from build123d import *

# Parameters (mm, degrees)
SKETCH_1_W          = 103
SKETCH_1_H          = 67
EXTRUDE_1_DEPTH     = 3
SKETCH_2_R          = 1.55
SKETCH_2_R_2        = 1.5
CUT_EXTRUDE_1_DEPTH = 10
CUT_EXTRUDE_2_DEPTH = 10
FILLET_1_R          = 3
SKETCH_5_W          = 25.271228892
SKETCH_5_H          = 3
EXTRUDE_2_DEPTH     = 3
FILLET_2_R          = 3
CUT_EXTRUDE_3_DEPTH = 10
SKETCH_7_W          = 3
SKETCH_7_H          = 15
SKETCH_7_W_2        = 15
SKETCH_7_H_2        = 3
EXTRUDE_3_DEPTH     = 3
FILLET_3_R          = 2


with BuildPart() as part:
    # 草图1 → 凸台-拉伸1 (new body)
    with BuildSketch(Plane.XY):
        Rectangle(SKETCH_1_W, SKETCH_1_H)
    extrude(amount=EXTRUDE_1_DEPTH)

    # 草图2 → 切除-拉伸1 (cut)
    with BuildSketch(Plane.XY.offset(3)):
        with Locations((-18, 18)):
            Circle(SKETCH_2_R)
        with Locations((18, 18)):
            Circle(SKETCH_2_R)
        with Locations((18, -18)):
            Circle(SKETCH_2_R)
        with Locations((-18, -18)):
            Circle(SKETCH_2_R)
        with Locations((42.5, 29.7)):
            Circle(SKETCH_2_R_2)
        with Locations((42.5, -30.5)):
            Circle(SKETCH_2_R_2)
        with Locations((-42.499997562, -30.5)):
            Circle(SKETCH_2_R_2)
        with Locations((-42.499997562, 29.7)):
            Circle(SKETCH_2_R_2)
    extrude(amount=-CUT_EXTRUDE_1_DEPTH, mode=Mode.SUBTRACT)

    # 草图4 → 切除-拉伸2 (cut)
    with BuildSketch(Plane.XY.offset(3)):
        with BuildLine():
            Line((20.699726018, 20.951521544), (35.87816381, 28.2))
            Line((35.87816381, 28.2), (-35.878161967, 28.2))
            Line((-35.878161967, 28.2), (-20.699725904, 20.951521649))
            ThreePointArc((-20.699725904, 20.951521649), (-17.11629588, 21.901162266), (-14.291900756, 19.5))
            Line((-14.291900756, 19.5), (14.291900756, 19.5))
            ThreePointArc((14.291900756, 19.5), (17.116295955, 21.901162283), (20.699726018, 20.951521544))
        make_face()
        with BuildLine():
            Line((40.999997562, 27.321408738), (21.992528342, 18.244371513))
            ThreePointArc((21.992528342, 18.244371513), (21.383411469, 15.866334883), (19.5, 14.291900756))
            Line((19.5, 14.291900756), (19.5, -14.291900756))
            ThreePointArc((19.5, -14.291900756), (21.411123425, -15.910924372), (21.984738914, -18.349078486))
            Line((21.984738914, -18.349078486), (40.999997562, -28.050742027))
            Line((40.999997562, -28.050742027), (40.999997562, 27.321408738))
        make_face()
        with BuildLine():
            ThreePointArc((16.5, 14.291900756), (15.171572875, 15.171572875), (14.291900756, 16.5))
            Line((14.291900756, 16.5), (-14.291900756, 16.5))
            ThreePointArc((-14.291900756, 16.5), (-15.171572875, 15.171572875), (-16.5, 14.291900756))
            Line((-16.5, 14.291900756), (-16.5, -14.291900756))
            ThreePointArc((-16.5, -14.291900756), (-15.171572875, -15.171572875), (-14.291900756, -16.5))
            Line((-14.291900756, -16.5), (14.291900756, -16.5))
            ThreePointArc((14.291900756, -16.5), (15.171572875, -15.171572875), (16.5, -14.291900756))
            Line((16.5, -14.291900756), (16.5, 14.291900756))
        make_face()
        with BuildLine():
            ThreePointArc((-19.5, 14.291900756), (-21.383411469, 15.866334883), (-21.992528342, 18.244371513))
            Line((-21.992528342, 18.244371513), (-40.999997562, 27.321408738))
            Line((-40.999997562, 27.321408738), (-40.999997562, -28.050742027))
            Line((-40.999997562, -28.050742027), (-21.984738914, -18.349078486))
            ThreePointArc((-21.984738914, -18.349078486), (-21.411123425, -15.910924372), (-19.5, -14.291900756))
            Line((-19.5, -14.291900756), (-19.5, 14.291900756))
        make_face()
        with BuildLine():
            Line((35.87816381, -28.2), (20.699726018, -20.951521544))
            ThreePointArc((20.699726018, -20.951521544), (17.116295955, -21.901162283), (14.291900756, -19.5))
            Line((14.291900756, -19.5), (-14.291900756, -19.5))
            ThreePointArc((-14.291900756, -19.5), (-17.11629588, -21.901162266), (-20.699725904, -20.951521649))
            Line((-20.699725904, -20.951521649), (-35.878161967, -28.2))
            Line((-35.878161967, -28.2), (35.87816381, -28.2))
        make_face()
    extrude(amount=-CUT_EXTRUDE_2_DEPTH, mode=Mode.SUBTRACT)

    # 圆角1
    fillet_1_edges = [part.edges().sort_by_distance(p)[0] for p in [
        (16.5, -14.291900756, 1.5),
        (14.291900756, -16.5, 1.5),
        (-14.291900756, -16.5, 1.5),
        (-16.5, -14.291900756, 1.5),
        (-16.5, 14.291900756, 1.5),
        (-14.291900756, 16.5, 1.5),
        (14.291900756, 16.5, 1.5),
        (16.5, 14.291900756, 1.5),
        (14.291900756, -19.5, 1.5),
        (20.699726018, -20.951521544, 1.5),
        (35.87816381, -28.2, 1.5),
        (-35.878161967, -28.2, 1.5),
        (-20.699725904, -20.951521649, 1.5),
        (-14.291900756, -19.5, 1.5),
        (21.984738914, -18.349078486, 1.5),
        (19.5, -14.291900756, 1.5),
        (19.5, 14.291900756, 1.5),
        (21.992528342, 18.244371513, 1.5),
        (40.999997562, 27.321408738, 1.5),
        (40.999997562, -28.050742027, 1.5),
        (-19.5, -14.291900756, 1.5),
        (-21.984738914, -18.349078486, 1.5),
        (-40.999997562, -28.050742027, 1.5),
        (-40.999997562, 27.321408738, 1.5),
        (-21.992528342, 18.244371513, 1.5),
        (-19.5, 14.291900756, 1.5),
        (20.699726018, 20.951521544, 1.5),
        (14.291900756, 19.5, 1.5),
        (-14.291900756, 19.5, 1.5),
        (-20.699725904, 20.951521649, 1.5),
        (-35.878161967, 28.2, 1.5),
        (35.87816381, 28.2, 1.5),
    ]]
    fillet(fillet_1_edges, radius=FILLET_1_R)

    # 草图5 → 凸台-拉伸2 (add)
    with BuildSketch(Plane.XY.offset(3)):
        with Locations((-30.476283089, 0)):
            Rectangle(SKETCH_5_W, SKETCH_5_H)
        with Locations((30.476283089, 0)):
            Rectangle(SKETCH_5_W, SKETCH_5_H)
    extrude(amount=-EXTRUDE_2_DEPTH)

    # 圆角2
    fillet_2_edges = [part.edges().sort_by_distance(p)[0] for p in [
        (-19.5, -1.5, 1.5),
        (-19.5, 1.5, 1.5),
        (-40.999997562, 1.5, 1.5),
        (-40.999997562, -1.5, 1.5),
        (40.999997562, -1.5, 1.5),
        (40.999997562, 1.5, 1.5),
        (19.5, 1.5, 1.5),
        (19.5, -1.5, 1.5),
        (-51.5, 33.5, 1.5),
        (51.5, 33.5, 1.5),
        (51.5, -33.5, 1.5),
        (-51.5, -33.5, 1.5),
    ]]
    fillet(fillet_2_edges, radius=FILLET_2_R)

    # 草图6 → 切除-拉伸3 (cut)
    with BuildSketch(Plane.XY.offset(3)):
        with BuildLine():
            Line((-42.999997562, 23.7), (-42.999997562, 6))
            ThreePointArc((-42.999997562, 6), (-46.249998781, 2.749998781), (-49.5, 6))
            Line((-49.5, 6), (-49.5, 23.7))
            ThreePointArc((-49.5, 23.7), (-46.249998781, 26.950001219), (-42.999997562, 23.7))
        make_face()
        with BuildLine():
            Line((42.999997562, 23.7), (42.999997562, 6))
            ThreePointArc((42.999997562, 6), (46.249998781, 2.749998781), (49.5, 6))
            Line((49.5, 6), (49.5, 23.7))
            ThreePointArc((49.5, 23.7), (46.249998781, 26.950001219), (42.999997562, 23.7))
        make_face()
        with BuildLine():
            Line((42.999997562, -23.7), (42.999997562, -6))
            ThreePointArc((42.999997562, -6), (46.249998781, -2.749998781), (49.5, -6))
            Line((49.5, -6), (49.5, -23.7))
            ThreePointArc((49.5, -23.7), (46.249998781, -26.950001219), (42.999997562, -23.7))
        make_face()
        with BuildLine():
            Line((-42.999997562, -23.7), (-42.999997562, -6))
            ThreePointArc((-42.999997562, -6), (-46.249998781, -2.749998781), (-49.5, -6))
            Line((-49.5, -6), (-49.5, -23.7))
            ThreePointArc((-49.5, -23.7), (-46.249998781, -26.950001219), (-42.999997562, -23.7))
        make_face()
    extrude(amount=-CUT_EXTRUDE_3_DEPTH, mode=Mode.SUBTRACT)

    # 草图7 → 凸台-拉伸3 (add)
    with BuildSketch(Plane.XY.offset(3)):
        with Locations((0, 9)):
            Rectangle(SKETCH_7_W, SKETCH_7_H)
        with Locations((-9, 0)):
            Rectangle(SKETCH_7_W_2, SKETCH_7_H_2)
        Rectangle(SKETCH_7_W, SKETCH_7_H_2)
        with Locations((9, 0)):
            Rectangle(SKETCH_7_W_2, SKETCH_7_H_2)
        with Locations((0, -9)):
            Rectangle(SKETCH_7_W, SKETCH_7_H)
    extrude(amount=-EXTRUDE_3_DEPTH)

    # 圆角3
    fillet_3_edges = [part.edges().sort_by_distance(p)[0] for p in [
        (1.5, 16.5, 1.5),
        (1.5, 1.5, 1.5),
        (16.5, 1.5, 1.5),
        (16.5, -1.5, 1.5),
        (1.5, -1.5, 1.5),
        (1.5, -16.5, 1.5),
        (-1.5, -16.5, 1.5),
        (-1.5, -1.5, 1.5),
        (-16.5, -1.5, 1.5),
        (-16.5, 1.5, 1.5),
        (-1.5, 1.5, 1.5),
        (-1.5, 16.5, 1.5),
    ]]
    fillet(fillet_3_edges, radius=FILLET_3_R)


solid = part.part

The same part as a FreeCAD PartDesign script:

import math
import FreeCAD as App
import Part
import Sketcher
from FreeCAD import Vector
Q = App.Units.Quantity


def edges_at(feature, points):
    """Names of the edges that pass closest to the given points."""
    edges = feature.Shape.Edges
    near = lambda p: min(range(len(edges)), key=lambda i: edges[i].distToShape(Part.Vertex(*p))[0])
    return sorted({f"Edge{near(p) + 1}" for p in points})


def add_polygon(sketch, points):
    """Adds a closed chain of lines whose ends are joined by coincident constraints."""
    first, n = sketch.GeometryCount, len(points)
    for a, b in zip(points, points[1:] + points[:1]):
        sketch.addGeometry(Part.LineSegment(App.Vector(*a, 0), App.Vector(*b, 0)), False)
    for i in range(n):
        sketch.addConstraint(Sketcher.Constraint("Coincident", first + i, 2, first + (i + 1) % n, 1))

doc = App.newDocument("Part")
body = doc.addObject("PartDesign::Body", "Body")

sketch1 = body.newObject("Sketcher::SketchObject", "Sketch")
sketch1.AttachmentSupport = (doc.getObject("XY_Plane"), [""])
sketch1.MapMode = "FlatFace"
add_polygon(sketch1, [(-52, 34), (-52, -34), (52, -34), (52, 34)])
sketch1.addConstraint([
    Sketcher.Constraint("Vertical", 0),
    Sketcher.Constraint("Horizontal", 1),
    Sketcher.Constraint("Vertical", 2),
    Sketcher.Constraint("Horizontal", 3),
    Sketcher.Constraint("Symmetric", 0, 2, 2, 2, -1, 1),
    Sketcher.Constraint("DistanceX", 1, 1, 1, 2, Q("103 mm")),
    Sketcher.Constraint("DistanceY", 0, 2, 0, 1, Q("67 mm")),
])
pad1 = body.newObject("PartDesign::Pad", "Pad")
pad1.Profile = sketch1
pad1.Length = 3

sketch2 = body.newObject("Sketcher::SketchObject", "Sketch001")
sketch2.AttachmentSupport = (doc.getObject("XY_Plane"), [""])
sketch2.MapMode = "FlatFace"
sketch2.AttachmentOffset = App.Placement(Vector(0, 0, 3), App.Rotation())
sketch2.addGeometry([
    Part.Circle(Vector(-18, 18, 0), Vector(0, 0, 1), 1.6),
    Part.Circle(Vector(18, 18, 0), Vector(0, 0, 1), 1.6),
    Part.Circle(Vector(18, -18, 0), Vector(0, 0, 1), 1.6),
    Part.Circle(Vector(-18, -18, 0), Vector(0, 0, 1), 1.6),
    Part.Circle(Vector(42.5, 29.7, 0), Vector(0, 0, 1), 1.5),
    Part.Circle(Vector(42.5, -30.5, 0), Vector(0, 0, 1), 1.5),
    Part.Circle(Vector(-42.5, -30.5, 0), Vector(0, 0, 1), 1.5),
    Part.Circle(Vector(-42.5, 29.7, 0), Vector(0, 0, 1), 1.5),
], False)
sketch2.addConstraint([
    Sketcher.Constraint("Equal", 0, 1),
    Sketcher.Constraint("Equal", 1, 2),
    Sketcher.Constraint("Equal", 2, 3),
    Sketcher.Constraint("Equal", 4, 5),
    Sketcher.Constraint("Equal", 5, 6),
    Sketcher.Constraint("Equal", 6, 7),
    Sketcher.Constraint("Symmetric", 0, 3, 2, 3, -1, 1),
    Sketcher.Constraint("Symmetric", 1, 3, 3, 3, -1, 1),
    Sketcher.Constraint("Symmetric", 0, 3, 1, 3, -2),
    Sketcher.Constraint("Symmetric", 5, 3, 6, 3, -2),
    Sketcher.Constraint("Symmetric", 4, 3, 7, 3, -2),
    Sketcher.Constraint("Vertical", 4, 3, 5, 3),
    Sketcher.Constraint("Diameter", 4, Q("3 mm")),
    Sketcher.Constraint("Diameter", 0, Q("3.1 mm")),
    Sketcher.Constraint("DistanceX", 0, 3, -1, 1, Q("18 mm")),
    Sketcher.Constraint("DistanceY", -1, 1, 0, 3, Q("18 mm")),
    Sketcher.Constraint("DistanceX", -1, 1, 4, 3, Q("42.5 mm")),
    Sketcher.Constraint("DistanceY", -1, 1, 4, 3, Q("29.7 mm")),
    Sketcher.Constraint("DistanceY", 5, 3, -1, 1, Q("30.5 mm")),
])
pocket1 = body.newObject("PartDesign::Pocket", "Pocket")
pocket1.Profile = sketch2
pocket1.Length = 10

sketch3 = body.newObject("Sketcher::SketchObject", "Sketch002")
sketch3.AttachmentSupport = (doc.getObject("XY_Plane"), [""])
sketch3.MapMode = "FlatFace"
sketch3.AttachmentOffset = App.Placement(Vector(0, 0, 3), App.Rotation())
sketch3.addGeometry([
    Part.LineSegment(Vector(20.7, 21, 0), Vector(35.9, 28.2, 0)),
    Part.LineSegment(Vector(35.9, 28.2, 0), Vector(-35.9, 28.2, 0)),
    Part.LineSegment(Vector(-35.9, 28.2, 0), Vector(-20.7, 21, 0)),
    Part.ArcOfCircle(Part.Circle(Vector(-18, 18, 0), Vector(0, 0, 1), 4), math.radians(22), math.radians(132)),
    Part.LineSegment(Vector(-14.3, 19.5, 0), Vector(14.3, 19.5, 0)),
    Part.ArcOfCircle(Part.Circle(Vector(18, 18, 0), Vector(0, 0, 1), 4), math.radians(48), math.radians(158)),
    Part.LineSegment(Vector(41, 27.3, 0), Vector(22, 18.2, 0)),
    Part.ArcOfCircle(Part.Circle(Vector(18, 18, 0), Vector(0, 0, 1), 4), math.radians(-68), math.radians(4)),
    Part.LineSegment(Vector(19.5, 14.3, 0), Vector(19.5, -14.3, 0)),
    Part.ArcOfCircle(Part.Circle(Vector(18, -18, 0), Vector(0, 0, 1), 4), math.radians(-5), math.radians(68)),
    Part.LineSegment(Vector(22, -18.3, 0), Vector(41, -28.1, 0)),
    Part.LineSegment(Vector(41, -28.1, 0), Vector(41, 27.3, 0)),
    Part.ArcOfCircle(Part.Circle(Vector(18, 18, 0), Vector(0, 0, 1), 4), math.radians(-158), math.radians(-112)),
    Part.LineSegment(Vector(14.3, 16.5, 0), Vector(-14.3, 16.5, 0)),
    Part.ArcOfCircle(Part.Circle(Vector(-18, 18, 0), Vector(0, 0, 1), 4), math.radians(-68), math.radians(-22)),
    Part.LineSegment(Vector(-16.5, 14.3, 0), Vector(-16.5, -14.3, 0)),
    Part.ArcOfCircle(Part.Circle(Vector(-18, -18, 0), Vector(0, 0, 1), 4), math.radians(22), math.radians(68)),
    Part.LineSegment(Vector(-14.3, -16.5, 0), Vector(14.3, -16.5, 0)),
    Part.ArcOfCircle(Part.Circle(Vector(18, -18, 0), Vector(0, 0, 1), 4), math.radians(112), math.radians(158)),
    Part.LineSegment(Vector(16.5, -14.3, 0), Vector(16.5, 14.3, 0)),
    Part.ArcOfCircle(Part.Circle(Vector(-18, 18, 0), Vector(0, 0, 1), 4), math.radians(176), math.radians(248)),
    Part.LineSegment(Vector(-22, 18.2, 0), Vector(-41, 27.3, 0)),
    Part.LineSegment(Vector(-41, 27.3, 0), Vector(-41, -28.1, 0)),
    Part.LineSegment(Vector(-41, -28.1, 0), Vector(-22, -18.3, 0)),
    Part.ArcOfCircle(Part.Circle(Vector(-18, -18, 0), Vector(0, 0, 1), 4), math.radians(112), math.radians(185)),
    Part.LineSegment(Vector(-19.5, -14.3, 0), Vector(-19.5, 14.3, 0)),
    Part.LineSegment(Vector(35.9, -28.2, 0), Vector(20.7, -21, 0)),
    Part.ArcOfCircle(Part.Circle(Vector(18, -18, 0), Vector(0, 0, 1), 4), math.radians(-158), math.radians(-48)),
    Part.LineSegment(Vector(14.3, -19.5, 0), Vector(-14.3, -19.5, 0)),
    Part.ArcOfCircle(Part.Circle(Vector(-18, -18, 0), Vector(0, 0, 1), 4), math.radians(-132), math.radians(-22)),
    Part.LineSegment(Vector(-20.7, -21, 0), Vector(-35.9, -28.2, 0)),
    Part.LineSegment(Vector(-35.9, -28.2, 0), Vector(35.9, -28.2, 0)),
], False)
sketch3.addConstraint([
    Sketcher.Constraint("Coincident", 0, 2, 1, 1),
    Sketcher.Constraint("Coincident", 1, 2, 2, 1),
    Sketcher.Constraint("Coincident", 2, 2, 3, 2),
    Sketcher.Constraint("Coincident", 3, 1, 4, 1),
    Sketcher.Constraint("Coincident", 4, 2, 5, 2),
    Sketcher.Constraint("Coincident", 5, 1, 0, 1),
    Sketcher.Constraint("Coincident", 6, 2, 7, 2),
    Sketcher.Constraint("Coincident", 7, 1, 8, 1),
    Sketcher.Constraint("Coincident", 8, 2, 9, 2),
    Sketcher.Constraint("Coincident", 9, 1, 10, 1),
    Sketcher.Constraint("Coincident", 10, 2, 11, 1),
    Sketcher.Constraint("Coincident", 11, 2, 6, 1),
    Sketcher.Constraint("Coincident", 12, 1, 13, 1),
    Sketcher.Constraint("Coincident", 13, 2, 14, 2),
    Sketcher.Constraint("Coincident", 14, 1, 15, 1),
    Sketcher.Constraint("Coincident", 15, 2, 16, 2),
    Sketcher.Constraint("Coincident", 16, 1, 17, 1),
    Sketcher.Constraint("Coincident", 17, 2, 18, 2),
    Sketcher.Constraint("Coincident", 18, 1, 19, 1),
    Sketcher.Constraint("Coincident", 19, 2, 12, 2),
    Sketcher.Constraint("Coincident", 20, 1, 21, 1),
    Sketcher.Constraint("Coincident", 21, 2, 22, 1),
    Sketcher.Constraint("Coincident", 22, 2, 23, 1),
    Sketcher.Constraint("Coincident", 23, 2, 24, 2),
    Sketcher.Constraint("Coincident", 24, 1, 25, 1),
    Sketcher.Constraint("Coincident", 25, 2, 20, 2),
    Sketcher.Constraint("Coincident", 26, 2, 27, 2),
    Sketcher.Constraint("Coincident", 27, 1, 28, 1),
    Sketcher.Constraint("Coincident", 28, 2, 29, 2),
    Sketcher.Constraint("Coincident", 29, 1, 30, 1),
    Sketcher.Constraint("Coincident", 30, 2, 31, 1),
    Sketcher.Constraint("Coincident", 31, 2, 26, 1),
    Sketcher.Constraint("Horizontal", 1),
    Sketcher.Constraint("Horizontal", 4),
    Sketcher.Constraint("Vertical", 8),
    Sketcher.Constraint("Vertical", 11),
    Sketcher.Constraint("Horizontal", 13),
    Sketcher.Constraint("Vertical", 15),
    Sketcher.Constraint("Horizontal", 17),
    Sketcher.Constraint("Vertical", 19),
    Sketcher.Constraint("Vertical", 22),
    Sketcher.Constraint("Vertical", 25),
    Sketcher.Constraint("Horizontal", 28),
    Sketcher.Constraint("Horizontal", 31),
    Sketcher.Constraint("Coincident", 7, 3, 5, 3),
    Sketcher.Constraint("Coincident", 12, 3, 5, 3),
    Sketcher.Constraint("Coincident", 14, 3, 3, 3),
    Sketcher.Constraint("Coincident", 18, 3, 9, 3),
    Sketcher.Constraint("Coincident", 20, 3, 3, 3),
    Sketcher.Constraint("Coincident", 24, 3, 16, 3),
    Sketcher.Constraint("Coincident", 27, 3, 9, 3),
    Sketcher.Constraint("Coincident", 29, 3, 16, 3),
    Sketcher.Constraint("Equal", 3, 5),
    Sketcher.Constraint("Equal", 5, 7),
    Sketcher.Constraint("Equal", 7, 9),
    Sketcher.Constraint("Equal", 9, 12),
    Sketcher.Constraint("Equal", 12, 14),
    Sketcher.Constraint("Equal", 14, 16),
    Sketcher.Constraint("Equal", 16, 18),
    Sketcher.Constraint("Equal", 18, 20),
    Sketcher.Constraint("Equal", 20, 24),
    Sketcher.Constraint("Equal", 24, 27),
    Sketcher.Constraint("Equal", 27, 29),
    Sketcher.Constraint("Symmetric", 3, 3, 9, 3, -1, 1),
    Sketcher.Constraint("Symmetric", 5, 3, 16, 3, -1, 1),
    Sketcher.Constraint("Symmetric", 0, 2, 30, 2, -1, 1),
    Sketcher.Constraint("Symmetric", 3, 3, 5, 3, -2),
    Sketcher.Constraint("Symmetric", 11, 2, 21, 2, -2),
    Sketcher.Constraint("Parallel", 0, 6),
    Sketcher.Constraint("Parallel", 2, 21),
    Sketcher.Constraint("Parallel", 21, 26),
    Sketcher.Constraint("Parallel", 6, 30),
    Sketcher.Constraint("Horizontal", 2, 2, 5, 1),
    Sketcher.Constraint("Horizontal", 7, 1, 14, 1),
    Sketcher.Constraint("Horizontal", 15, 2, 18, 1),
    Sketcher.Constraint("Horizontal", 6, 2, 20, 1),
    Sketcher.Constraint("Horizontal", 10, 2, 22, 2),
    Sketcher.Constraint("Horizontal", 9, 1, 23, 2),
    Sketcher.Constraint("Horizontal", 18, 1, 24, 1),
    Sketcher.Constraint("Horizontal", 26, 2, 29, 1),
    Sketcher.Constraint("Vertical", 4, 2, 12, 1),
    Sketcher.Constraint("Vertical", 13, 2, 16, 1),
    Sketcher.Constraint("Vertical", 17, 2, 27, 1),
    Sketcher.Constraint("Equal", 28, 8),
    Sketcher.Constraint("Radius", 3, Q("4 mm")),
    Sketcher.Constraint("DistanceX", 3, 3, -1, 1, Q("18 mm")),
    Sketcher.Constraint("DistanceY", -1, 1, 3, 3, Q("18 mm")),
    Sketcher.Constraint("DistanceY", 12, 1, 4, 2, Q("3 mm")),
    Sketcher.Constraint("DistanceY", -1, 1, 0, 2, Q("28.2 mm")),
    Sketcher.Constraint("DistanceY", 11, 1, 11, 2, Q("55.372151 mm")),
    Sketcher.Constraint("Distance", 6, Q("21.06363 mm")),
    Sketcher.Constraint("DistanceX", 1, 2, 1, 1, Q("71.756326 mm")),
    Sketcher.Constraint("DistanceY", -1, 1, 2, 2, Q("20.951522 mm")),
    Sketcher.Constraint("DistanceX", -1, 1, 6, 2, Q("21.992528 mm")),
    Sketcher.Constraint("DistanceX", -1, 1, 9, 1, Q("21.984739 mm")),
])
pocket2 = body.newObject("PartDesign::Pocket", "Pocket001")
pocket2.Profile = sketch3
pocket2.Length = 10
doc.recompute()

fillet = body.newObject("PartDesign::Fillet", "Fillet")
fillet.Base = (pocket2, edges_at(pocket2, [
    (16.5, -14.292, 1.5),
    (14.292, -16.5, 1.5),
    (-14.292, -16.5, 1.5),
    (-16.5, -14.292, 1.5),
    (-16.5, 14.292, 1.5),
    (-14.292, 16.5, 1.5),
    (14.292, 16.5, 1.5),
    (16.5, 14.292, 1.5),
    (14.292, -19.5, 1.5),
    (20.7, -20.952, 1.5),
    (35.878, -28.2, 1.5),
    (-35.878, -28.2, 1.5),
    (-20.7, -20.952, 1.5),
    (-14.292, -19.5, 1.5),
    (21.985, -18.349, 1.5),
    (19.5, -14.292, 1.5),
    (19.5, 14.292, 1.5),
    (21.993, 18.244, 1.5),
    (41, 27.321, 1.5),
    (41, -28.051, 1.5),
    (-19.5, -14.292, 1.5),
    (-21.985, -18.349, 1.5),
    (-41, -28.051, 1.5),
    (-41, 27.321, 1.5),
    (-21.993, 18.244, 1.5),
    (-19.5, 14.292, 1.5),
    (20.7, 20.952, 1.5),
    (14.292, 19.5, 1.5),
    (-14.292, 19.5, 1.5),
    (-20.7, 20.952, 1.5),
    (-35.878, 28.2, 1.5),
    (35.878, 28.2, 1.5),
]))
fillet.Radius = 3

sketch4 = body.newObject("Sketcher::SketchObject", "Sketch003")
sketch4.AttachmentSupport = (doc.getObject("XY_Plane"), [""])
sketch4.MapMode = "FlatFace"
sketch4.AttachmentOffset = App.Placement(Vector(0, 0, 3), App.Rotation())
add_polygon(sketch4, [(-43.1, 1.5), (-43.1, -1.5), (-17.8, -1.5), (-17.8, 1.5)])
add_polygon(sketch4, [(17.8, 1.5), (17.8, -1.5), (43.1, -1.5), (43.1, 1.5)])
sketch4.addConstraint([
    Sketcher.Constraint("Vertical", 0),
    Sketcher.Constraint("Horizontal", 1),
    Sketcher.Constraint("Vertical", 2),
    Sketcher.Constraint("Horizontal", 3),
    Sketcher.Constraint("Vertical", 4),
    Sketcher.Constraint("Horizontal", 5),
    Sketcher.Constraint("Vertical", 6),
    Sketcher.Constraint("Horizontal", 7),
    Sketcher.Constraint("Symmetric", 2, 2, 4, 2, -1, 1),
    Sketcher.Constraint("Symmetric", 0, 2, 6, 2, -1, 1),
    Sketcher.Constraint("Horizontal", 1, 2, 4, 2),
    Sketcher.Constraint("DistanceY", 0, 2, 0, 1, Q("3 mm")),
    Sketcher.Constraint("DistanceX", 1, 1, 1, 2, Q("25.271229 mm")),
    Sketcher.Constraint("DistanceX", 1, 2, -1, 1, Q("17.840669 mm")),
])
pad2 = body.newObject("PartDesign::Pad", "Pad001")
pad2.Profile = sketch4
pad2.Length = 3
pad2.Reversed = True
doc.recompute()

fillet2 = body.newObject("PartDesign::Fillet", "Fillet001")
fillet2.Base = (pad2, edges_at(pad2, [
    (-19.5, -1.5, 1.5),
    (-19.5, 1.5, 1.5),
    (-41, 1.5, 1.5),
    (-41, -1.5, 1.5),
    (41, -1.5, 1.5),
    (41, 1.5, 1.5),
    (19.5, 1.5, 1.5),
    (19.5, -1.5, 1.5),
    (-51.5, 33.5, 1.5),
    (51.5, 33.5, 1.5),
    (51.5, -33.5, 1.5),
    (-51.5, -33.5, 1.5),
]))
fillet2.Radius = 3

sketch5 = body.newObject("Sketcher::SketchObject", "Sketch004")
sketch5.AttachmentSupport = (doc.getObject("XY_Plane"), [""])
sketch5.MapMode = "FlatFace"
sketch5.AttachmentOffset = App.Placement(Vector(0, 0, 3), App.Rotation())
sketch5.addGeometry([
    Part.LineSegment(Vector(-43, 6, 0), Vector(-43, 23.7, 0)),
    Part.ArcOfCircle(Part.Circle(Vector(-46.2, 23.7, 0), Vector(0, 0, 1), 3.3), math.radians(0), math.radians(180)),
    Part.LineSegment(Vector(-49.5, 23.7, 0), Vector(-49.5, 6, 0)),
    Part.ArcOfCircle(Part.Circle(Vector(-46.2, 6, 0), Vector(0, 0, 1), 3.3), math.radians(180), math.radians(360)),
    Part.LineSegment(Vector(43, 23.7, 0), Vector(43, 6, 0)),
    Part.ArcOfCircle(Part.Circle(Vector(46.2, 6, 0), Vector(0, 0, 1), 3.3), math.radians(180), math.radians(360)),
    Part.LineSegment(Vector(49.5, 6, 0), Vector(49.5, 23.7, 0)),
    Part.ArcOfCircle(Part.Circle(Vector(46.2, 23.7, 0), Vector(0, 0, 1), 3.3), math.radians(0), math.radians(180)),
    Part.LineSegment(Vector(43, -6, 0), Vector(43, -23.7, 0)),
    Part.ArcOfCircle(Part.Circle(Vector(46.2, -23.7, 0), Vector(0, 0, 1), 3.3), math.radians(180), math.radians(360)),
    Part.LineSegment(Vector(49.5, -23.7, 0), Vector(49.5, -6, 0)),
    Part.ArcOfCircle(Part.Circle(Vector(46.2, -6, 0), Vector(0, 0, 1), 3.3), math.radians(0), math.radians(180)),
    Part.LineSegment(Vector(-43, -23.7, 0), Vector(-43, -6, 0)),
    Part.ArcOfCircle(Part.Circle(Vector(-46.2, -6, 0), Vector(0, 0, 1), 3.3), math.radians(0), math.radians(180)),
    Part.LineSegment(Vector(-49.5, -6, 0), Vector(-49.5, -23.7, 0)),
    Part.ArcOfCircle(Part.Circle(Vector(-46.2, -23.7, 0), Vector(0, 0, 1), 3.3), math.radians(180), math.radians(360)),
], False)
sketch5.addConstraint([
    Sketcher.Constraint("Tangent", 0, 2, 1, 1),
    Sketcher.Constraint("Tangent", 1, 2, 2, 1),
    Sketcher.Constraint("Tangent", 2, 2, 3, 1),
    Sketcher.Constraint("Tangent", 3, 2, 0, 1),
    Sketcher.Constraint("Tangent", 4, 2, 5, 1),
    Sketcher.Constraint("Tangent", 5, 2, 6, 1),
    Sketcher.Constraint("Tangent", 6, 2, 7, 1),
    Sketcher.Constraint("Tangent", 7, 2, 4, 1),
    Sketcher.Constraint("Tangent", 8, 2, 9, 1),
    Sketcher.Constraint("Tangent", 9, 2, 10, 1),
    Sketcher.Constraint("Tangent", 10, 2, 11, 1),
    Sketcher.Constraint("Tangent", 11, 2, 8, 1),
    Sketcher.Constraint("Tangent", 12, 2, 13, 1),
    Sketcher.Constraint("Tangent", 13, 2, 14, 1),
    Sketcher.Constraint("Tangent", 14, 2, 15, 1),
    Sketcher.Constraint("Tangent", 15, 2, 12, 1),
    Sketcher.Constraint("Vertical", 0),
    Sketcher.Constraint("Vertical", 2),
    Sketcher.Constraint("Vertical", 4),
    Sketcher.Constraint("Vertical", 6),
    Sketcher.Constraint("Vertical", 8),
    Sketcher.Constraint("Vertical", 10),
    Sketcher.Constraint("Vertical", 12),
    Sketcher.Constraint("Vertical", 14),
    Sketcher.Constraint("Equal", 3, 5),
    Sketcher.Constraint("Equal", 7, 9),
    Sketcher.Constraint("Equal", 11, 13),
    Sketcher.Constraint("Symmetric", 1, 3, 9, 3, -1, 1),
    Sketcher.Constraint("Symmetric", 5, 3, 13, 3, -1, 1),
    Sketcher.Constraint("Symmetric", 3, 3, 5, 3, -2),
    Sketcher.Constraint("Horizontal", 1, 3, 7, 3),
    Sketcher.Constraint("Horizontal", 11, 3, 13, 3),
    Sketcher.Constraint("Horizontal", 9, 3, 15, 3),
    Sketcher.Constraint("Radius", 1, Q("3.250001 mm")),
    Sketcher.Constraint("DistanceY", 0, 1, 0, 2, Q("17.7 mm")),
    Sketcher.Constraint("DistanceY", -1, 1, 3, 3, Q("6 mm")),
    Sketcher.Constraint("DistanceX", 1, 2, -1, 1, Q("49.5 mm")),
])
pocket3 = body.newObject("PartDesign::Pocket", "Pocket002")
pocket3.Profile = sketch5
pocket3.Length = 10

sketch6 = body.newObject("Sketcher::SketchObject", "Sketch005")
sketch6.AttachmentSupport = (doc.getObject("XY_Plane"), [""])
sketch6.MapMode = "FlatFace"
sketch6.AttachmentOffset = App.Placement(Vector(0, 0, 3), App.Rotation())
add_polygon(sketch6, [(-1.5, 16.5), (-1.5, 1.5), (-16.5, 1.5), (-16.5, -1.5), (-1.5, -1.5), (-1.5, -16.5), (1.5, -16.5), (1.5, -1.5), (16.5, -1.5), (16.5, 1.5), (1.5, 1.5), (1.5, 16.5)])
sketch6.addConstraint([
    Sketcher.Constraint("Vertical", 0),
    Sketcher.Constraint("Horizontal", 1),
    Sketcher.Constraint("Vertical", 2),
    Sketcher.Constraint("Horizontal", 3),
    Sketcher.Constraint("Vertical", 4),
    Sketcher.Constraint("Horizontal", 5),
    Sketcher.Constraint("Vertical", 6),
    Sketcher.Constraint("Horizontal", 7),
    Sketcher.Constraint("Vertical", 8),
    Sketcher.Constraint("Horizontal", 9),
    Sketcher.Constraint("Vertical", 10),
    Sketcher.Constraint("Horizontal", 11),
    Sketcher.Constraint("Symmetric", 0, 2, 6, 2, -1, 1),
    Sketcher.Constraint("Symmetric", 2, 2, 8, 2, -1, 1),
    Sketcher.Constraint("Symmetric", 4, 2, 10, 2, -1, 1),
    Sketcher.Constraint("Symmetric", 3, 2, 6, 2, -2),
    Sketcher.Constraint("Equal", 9, 0),
    Sketcher.Constraint("Equal", 11, 2),
    Sketcher.Constraint("DistanceX", 1, 2, 1, 1, Q("15 mm")),
    Sketcher.Constraint("DistanceX", 5, 1, 5, 2, Q("3 mm")),
])
pad3 = body.newObject("PartDesign::Pad", "Pad002")
pad3.Profile = sketch6
pad3.Length = 3
pad3.Reversed = True
doc.recompute()

fillet3 = body.newObject("PartDesign::Fillet", "Fillet002")
fillet3.Base = (pad3, edges_at(pad3, [
    (1.5, 16.5, 1.5),
    (1.5, 1.5, 1.5),
    (16.5, 1.5, 1.5),
    (16.5, -1.5, 1.5),
    (1.5, -1.5, 1.5),
    (1.5, -16.5, 1.5),
    (-1.5, -16.5, 1.5),
    (-1.5, -1.5, 1.5),
    (-16.5, -1.5, 1.5),
    (-16.5, 1.5, 1.5),
    (-1.5, 1.5, 1.5),
    (-1.5, 16.5, 1.5),
]))
fillet3.Radius = 2

doc.recompute()
